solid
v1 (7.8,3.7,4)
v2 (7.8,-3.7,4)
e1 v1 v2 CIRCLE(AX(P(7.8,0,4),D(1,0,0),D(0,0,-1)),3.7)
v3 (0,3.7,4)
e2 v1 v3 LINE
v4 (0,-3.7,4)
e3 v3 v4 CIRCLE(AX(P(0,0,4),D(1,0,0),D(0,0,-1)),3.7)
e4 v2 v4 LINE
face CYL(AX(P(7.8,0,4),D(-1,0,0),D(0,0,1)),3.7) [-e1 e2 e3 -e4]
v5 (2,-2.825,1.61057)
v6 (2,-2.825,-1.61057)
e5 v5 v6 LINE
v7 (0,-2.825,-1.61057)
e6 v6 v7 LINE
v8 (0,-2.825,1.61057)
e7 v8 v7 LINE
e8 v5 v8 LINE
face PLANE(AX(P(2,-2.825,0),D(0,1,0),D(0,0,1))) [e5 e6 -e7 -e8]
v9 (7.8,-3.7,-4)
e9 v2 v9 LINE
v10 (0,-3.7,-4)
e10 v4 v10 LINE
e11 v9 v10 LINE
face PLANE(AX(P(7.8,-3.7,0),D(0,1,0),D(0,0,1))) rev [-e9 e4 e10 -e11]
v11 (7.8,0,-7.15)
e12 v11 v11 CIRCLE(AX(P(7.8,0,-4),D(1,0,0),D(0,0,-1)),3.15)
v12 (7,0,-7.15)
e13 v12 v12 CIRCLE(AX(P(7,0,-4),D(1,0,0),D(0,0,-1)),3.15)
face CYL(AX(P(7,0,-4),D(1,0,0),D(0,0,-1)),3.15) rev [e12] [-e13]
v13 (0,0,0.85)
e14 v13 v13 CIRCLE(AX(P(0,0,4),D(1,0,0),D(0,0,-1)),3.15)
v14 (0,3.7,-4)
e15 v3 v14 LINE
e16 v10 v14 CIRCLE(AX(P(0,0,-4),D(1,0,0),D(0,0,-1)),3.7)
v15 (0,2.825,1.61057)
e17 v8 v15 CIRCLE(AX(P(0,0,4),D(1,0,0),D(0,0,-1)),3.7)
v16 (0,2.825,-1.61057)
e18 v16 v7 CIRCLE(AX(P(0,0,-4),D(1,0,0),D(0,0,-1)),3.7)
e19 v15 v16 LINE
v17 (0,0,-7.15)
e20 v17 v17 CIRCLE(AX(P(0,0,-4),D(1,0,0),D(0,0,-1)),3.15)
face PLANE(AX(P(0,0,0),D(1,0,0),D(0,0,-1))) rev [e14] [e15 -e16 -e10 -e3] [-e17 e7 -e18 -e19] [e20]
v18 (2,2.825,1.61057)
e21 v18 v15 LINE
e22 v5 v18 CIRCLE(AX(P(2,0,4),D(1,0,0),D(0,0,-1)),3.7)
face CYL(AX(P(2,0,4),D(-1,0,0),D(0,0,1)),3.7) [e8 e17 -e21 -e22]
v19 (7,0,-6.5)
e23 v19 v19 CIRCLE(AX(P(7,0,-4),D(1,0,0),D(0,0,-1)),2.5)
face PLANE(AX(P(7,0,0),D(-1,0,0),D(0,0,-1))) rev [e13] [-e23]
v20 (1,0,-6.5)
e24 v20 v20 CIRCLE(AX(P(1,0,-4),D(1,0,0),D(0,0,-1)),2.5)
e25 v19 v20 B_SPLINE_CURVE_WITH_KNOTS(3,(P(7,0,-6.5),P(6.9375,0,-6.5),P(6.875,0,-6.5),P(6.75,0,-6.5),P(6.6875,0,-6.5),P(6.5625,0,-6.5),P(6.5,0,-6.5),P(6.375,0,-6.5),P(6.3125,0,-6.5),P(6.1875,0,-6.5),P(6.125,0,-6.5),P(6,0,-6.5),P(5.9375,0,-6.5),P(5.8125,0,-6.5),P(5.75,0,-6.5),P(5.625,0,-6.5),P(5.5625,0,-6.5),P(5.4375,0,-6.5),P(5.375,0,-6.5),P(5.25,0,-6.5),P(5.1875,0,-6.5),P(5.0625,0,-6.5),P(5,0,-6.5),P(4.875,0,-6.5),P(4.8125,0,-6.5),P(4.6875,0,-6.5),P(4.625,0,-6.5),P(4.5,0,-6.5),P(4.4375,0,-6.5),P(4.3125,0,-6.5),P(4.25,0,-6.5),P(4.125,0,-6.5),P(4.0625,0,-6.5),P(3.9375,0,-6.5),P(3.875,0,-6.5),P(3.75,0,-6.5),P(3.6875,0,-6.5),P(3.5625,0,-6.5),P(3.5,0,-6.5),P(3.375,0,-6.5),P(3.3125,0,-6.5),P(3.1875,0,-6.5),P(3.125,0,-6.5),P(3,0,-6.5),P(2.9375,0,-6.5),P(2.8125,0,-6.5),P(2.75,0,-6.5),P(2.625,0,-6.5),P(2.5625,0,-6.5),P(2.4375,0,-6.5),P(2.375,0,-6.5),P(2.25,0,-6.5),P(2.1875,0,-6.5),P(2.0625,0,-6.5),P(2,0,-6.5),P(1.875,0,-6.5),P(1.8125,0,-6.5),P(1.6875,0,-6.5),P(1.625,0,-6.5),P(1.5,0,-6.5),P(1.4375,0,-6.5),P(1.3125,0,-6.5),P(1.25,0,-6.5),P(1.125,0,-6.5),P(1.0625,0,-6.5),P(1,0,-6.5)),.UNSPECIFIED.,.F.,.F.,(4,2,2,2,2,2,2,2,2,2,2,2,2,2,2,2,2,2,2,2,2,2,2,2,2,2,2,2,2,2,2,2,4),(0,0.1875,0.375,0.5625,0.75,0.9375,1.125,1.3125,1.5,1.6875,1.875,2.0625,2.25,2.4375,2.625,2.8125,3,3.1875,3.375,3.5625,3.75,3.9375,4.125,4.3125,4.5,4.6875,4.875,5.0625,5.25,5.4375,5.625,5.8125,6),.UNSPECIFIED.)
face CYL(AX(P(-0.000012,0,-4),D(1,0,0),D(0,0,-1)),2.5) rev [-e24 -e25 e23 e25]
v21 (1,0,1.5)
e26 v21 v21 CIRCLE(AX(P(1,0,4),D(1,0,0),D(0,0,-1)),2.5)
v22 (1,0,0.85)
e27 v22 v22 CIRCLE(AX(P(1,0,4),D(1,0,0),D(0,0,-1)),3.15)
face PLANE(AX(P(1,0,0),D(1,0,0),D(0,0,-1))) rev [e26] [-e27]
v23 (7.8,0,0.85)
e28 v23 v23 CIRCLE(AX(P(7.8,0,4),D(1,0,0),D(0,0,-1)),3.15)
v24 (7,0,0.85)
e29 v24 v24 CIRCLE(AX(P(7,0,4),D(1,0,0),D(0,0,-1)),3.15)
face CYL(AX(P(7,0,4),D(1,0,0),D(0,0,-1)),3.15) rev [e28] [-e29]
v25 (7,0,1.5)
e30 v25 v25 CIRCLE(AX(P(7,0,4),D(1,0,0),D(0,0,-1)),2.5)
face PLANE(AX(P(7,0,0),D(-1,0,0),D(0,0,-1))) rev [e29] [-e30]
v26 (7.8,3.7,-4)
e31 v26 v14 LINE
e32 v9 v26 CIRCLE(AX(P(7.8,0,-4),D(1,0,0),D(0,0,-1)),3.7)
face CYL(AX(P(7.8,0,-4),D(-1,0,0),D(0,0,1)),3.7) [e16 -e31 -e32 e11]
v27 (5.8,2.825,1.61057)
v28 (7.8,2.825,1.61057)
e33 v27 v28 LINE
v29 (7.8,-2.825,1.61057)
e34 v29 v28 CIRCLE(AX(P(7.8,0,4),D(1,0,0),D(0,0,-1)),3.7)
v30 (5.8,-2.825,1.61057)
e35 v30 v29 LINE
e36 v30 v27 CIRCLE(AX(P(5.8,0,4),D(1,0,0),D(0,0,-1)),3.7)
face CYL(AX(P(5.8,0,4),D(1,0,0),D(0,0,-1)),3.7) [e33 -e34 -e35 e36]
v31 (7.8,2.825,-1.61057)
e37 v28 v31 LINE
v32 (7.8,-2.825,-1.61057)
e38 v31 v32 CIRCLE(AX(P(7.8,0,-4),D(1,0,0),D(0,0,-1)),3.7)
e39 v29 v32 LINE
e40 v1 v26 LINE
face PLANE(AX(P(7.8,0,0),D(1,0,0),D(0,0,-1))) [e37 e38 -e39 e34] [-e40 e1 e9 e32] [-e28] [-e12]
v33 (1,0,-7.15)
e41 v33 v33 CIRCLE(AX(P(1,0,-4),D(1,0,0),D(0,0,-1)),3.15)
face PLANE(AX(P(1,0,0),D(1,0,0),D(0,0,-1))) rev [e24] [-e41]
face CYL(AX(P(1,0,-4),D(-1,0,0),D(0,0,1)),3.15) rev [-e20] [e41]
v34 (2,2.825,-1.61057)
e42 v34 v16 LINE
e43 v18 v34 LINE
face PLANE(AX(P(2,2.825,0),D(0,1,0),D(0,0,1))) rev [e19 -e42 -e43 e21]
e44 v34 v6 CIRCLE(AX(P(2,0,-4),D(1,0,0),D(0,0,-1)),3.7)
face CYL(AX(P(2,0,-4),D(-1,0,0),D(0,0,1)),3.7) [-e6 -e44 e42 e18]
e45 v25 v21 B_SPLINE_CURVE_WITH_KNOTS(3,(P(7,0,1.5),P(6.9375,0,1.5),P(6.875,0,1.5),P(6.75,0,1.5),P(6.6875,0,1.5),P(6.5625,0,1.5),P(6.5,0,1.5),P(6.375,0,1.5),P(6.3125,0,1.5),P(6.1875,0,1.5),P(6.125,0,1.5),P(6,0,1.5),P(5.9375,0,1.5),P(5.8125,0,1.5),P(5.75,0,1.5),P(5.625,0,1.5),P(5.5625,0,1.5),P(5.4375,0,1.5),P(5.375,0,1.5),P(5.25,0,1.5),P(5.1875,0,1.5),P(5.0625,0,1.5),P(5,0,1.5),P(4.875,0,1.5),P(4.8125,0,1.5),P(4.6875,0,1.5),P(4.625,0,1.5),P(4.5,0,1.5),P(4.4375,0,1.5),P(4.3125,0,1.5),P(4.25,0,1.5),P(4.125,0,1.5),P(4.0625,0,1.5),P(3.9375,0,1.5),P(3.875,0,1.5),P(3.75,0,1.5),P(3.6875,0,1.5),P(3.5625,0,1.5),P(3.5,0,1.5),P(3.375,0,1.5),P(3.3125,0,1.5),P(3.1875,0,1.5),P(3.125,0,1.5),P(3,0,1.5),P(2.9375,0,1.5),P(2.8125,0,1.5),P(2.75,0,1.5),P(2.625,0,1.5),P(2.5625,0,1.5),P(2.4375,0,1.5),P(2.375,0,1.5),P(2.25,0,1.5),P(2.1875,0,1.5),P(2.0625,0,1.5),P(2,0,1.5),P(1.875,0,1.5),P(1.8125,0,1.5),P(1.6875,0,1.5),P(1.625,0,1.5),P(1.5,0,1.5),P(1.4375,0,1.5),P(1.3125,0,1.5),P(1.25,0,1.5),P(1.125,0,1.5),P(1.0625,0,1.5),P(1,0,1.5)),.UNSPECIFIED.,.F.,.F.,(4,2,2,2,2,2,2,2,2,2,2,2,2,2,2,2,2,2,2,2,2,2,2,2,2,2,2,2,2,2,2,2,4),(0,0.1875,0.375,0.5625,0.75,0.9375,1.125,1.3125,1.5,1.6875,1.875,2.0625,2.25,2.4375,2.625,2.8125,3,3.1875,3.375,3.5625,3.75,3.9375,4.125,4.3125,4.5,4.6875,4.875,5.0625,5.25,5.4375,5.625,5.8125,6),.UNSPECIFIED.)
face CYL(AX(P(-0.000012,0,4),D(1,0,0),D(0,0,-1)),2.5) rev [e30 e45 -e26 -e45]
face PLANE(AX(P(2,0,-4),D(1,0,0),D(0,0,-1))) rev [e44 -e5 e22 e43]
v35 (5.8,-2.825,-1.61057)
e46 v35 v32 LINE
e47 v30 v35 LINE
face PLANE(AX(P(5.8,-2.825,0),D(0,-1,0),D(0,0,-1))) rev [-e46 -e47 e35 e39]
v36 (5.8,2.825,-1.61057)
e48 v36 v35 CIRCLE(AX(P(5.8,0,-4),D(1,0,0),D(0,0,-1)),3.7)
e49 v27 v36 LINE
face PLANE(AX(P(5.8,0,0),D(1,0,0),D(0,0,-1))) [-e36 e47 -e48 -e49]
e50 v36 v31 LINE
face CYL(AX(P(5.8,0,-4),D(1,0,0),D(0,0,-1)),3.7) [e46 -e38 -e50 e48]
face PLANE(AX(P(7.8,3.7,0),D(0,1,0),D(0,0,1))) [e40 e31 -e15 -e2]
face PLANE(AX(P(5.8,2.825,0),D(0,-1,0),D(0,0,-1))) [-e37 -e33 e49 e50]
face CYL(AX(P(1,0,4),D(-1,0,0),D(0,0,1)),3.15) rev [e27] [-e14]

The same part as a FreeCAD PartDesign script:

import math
import FreeCAD as App
import Part
import Sketcher
Q = App.Units.Quantity

doc = App.newDocument("Part")
params = doc.addObject("Spreadsheet::Sheet", "Params")
for row, (alias, value) in enumerate([
    ("sketch1_radius", "3.7 mm"),
    ("sketch1_height", "8 mm"),
    ("pad1_length", "7.8 mm"),
    ("sketch2_diameter", "5 mm"),
    ("sketch3_diameter", "6.3 mm"),
    ("pocket2_length", "1 mm"),
    ("sketch4_radius", "3.7 mm"),
    ("pocket3_length", "2 mm"),
    ("sketch5_radius", "3.7 mm"),
    ("pocket4_length", "2 mm"),
], start=1):
    params.set(f"A{row}", alias)
    params.set(f"B{row}", "=" + value)
    params.setAlias(f"B{row}", alias)

body = doc.addObject("PartDesign::Body", "Body")

# Sketch on YZ plane
sketch1 = doc.addObject("Sketcher::SketchObject", "Sketch")
body.addObject(sketch1)
sketch1.AttachmentSupport = (doc.YZ_Plane, [""])
sketch1.MapMode = "FlatFace"
sketch1.addGeometry([
    Part.LineSegment(App.Vector(3.7, -4, 0), App.Vector(3.7, 4, 0)),
    Part.ArcOfCircle(Part.Circle(App.Vector(0, 4, 0), App.Vector(0, 0, 1), 3.7), math.radians(0), math.radians(180)),
    Part.LineSegment(App.Vector(-3.7, 4, 0), App.Vector(-3.7, -4, 0)),
    Part.ArcOfCircle(Part.Circle(App.Vector(0, -4, 0), App.Vector(0, 0, 1), 3.7), math.radians(180), math.radians(360)),
], False)
sketch1.addConstraint([
    Sketcher.Constraint("Tangent", 0, 2, 1, 1),
    Sketcher.Constraint("Tangent", 1, 2, 2, 1),
    Sketcher.Constraint("Tangent", 2, 2, 3, 1),
    Sketcher.Constraint("Tangent", 3, 2, 0, 1),
    Sketcher.Constraint("Vertical", 0),
    Sketcher.Constraint("Vertical", 2),
    Sketcher.Constraint("Symmetric", 1, 3, 3, 3, -1, 1),
    Sketcher.Constraint("Radius", 1, Q("3.7 mm")),
    Sketcher.Constraint("DistanceY", 0, 1, 0, 2, Q("8 mm")),
])
sketch1.setExpression("Constraints[7]", "Params.sketch1_radius")
sketch1.setExpression("Constraints[8]", "Params.sketch1_height")
pad1 = doc.addObject("PartDesign::Pad", "Pad")
body.addObject(pad1)
pad1.Profile = sketch1
pad1.setExpression("Length", "Params.pad1_length")

# Sketch on YZ plane
sketch2 = doc.addObject("Sketcher::SketchObject", "Sketch001")
body.addObject(sketch2)
sketch2.AttachmentSupport = (doc.YZ_Plane, [""])
sketch2.MapMode = "FlatFace"
sketch2.addGeometry([
    Part.Circle(App.Vector(0, 4, 0), App.Vector(0, 0, 1), 2.5),
    Part.Circle(App.Vector(0, -4, 0), App.Vector(0, 0, 1), 2.5),
], False)
sketch2.addConstraint([
    Sketcher.Constraint("Equal", 0, 1),
    Sketcher.Constraint("Symmetric", 0, 3, 1, 3, -1, 1),
    Sketcher.Constraint("PointOnObject", 0, 3, -2),
    Sketcher.Constraint("Diameter", 0, Q("5 mm")),
    Sketcher.Constraint("DistanceY", -1, 1, 0, 3, Q("4 mm")),
])
sketch2.setExpression("Constraints[3]", "Params.sketch2_diameter")
pocket1 = doc.addObject("PartDesign::Pocket", "Pocket")
body.addObject(pocket1)
pocket1.Profile = sketch2
pocket1.Type = "ThroughAll"
pocket1.Midplane = True

# Sketch on YZ plane
sketch3 = doc.addObject("Sketcher::SketchObject", "Sketch002")
body.addObject(sketch3)
sketch3.AttachmentSupport = (doc.YZ_Plane, [""])
sketch3.MapMode = "FlatFace"
sketch3.addGeometry([
    Part.Circle(App.Vector(0, 4, 0), App.Vector(0, 0, 1), 3.1),
    Part.Circle(App.Vector(0, -4, 0), App.Vector(0, 0, 1), 3.1),
], False)
sketch3.addConstraint([
    Sketcher.Constraint("Equal", 0, 1),
    Sketcher.Constraint("Symmetric", 0, 3, 1, 3, -1, 1),
    Sketcher.Constraint("PointOnObject", 0, 3, -2),
    Sketcher.Constraint("Diameter", 0, Q("6.3 mm")),
    Sketcher.Constraint("DistanceY", -1, 1, 0, 3, Q("4 mm")),
])
sketch3.setExpression("Constraints[3]", "Params.sketch3_diameter")
pocket2 = doc.addObject("PartDesign::Pocket", "Pocket001")
body.addObject(pocket2)
pocket2.Profile = sketch3
pocket2.setExpression("Length", "Params.pocket2_length")
pocket2.Reversed = True
doc.recompute()

datumplane = doc.addObject("PartDesign::Plane", "DatumPlane")
body.addObject(datumplane)
datumplane.AttachmentSupport = (doc.YZ_Plane, [""])
datumplane.MapMode = "FlatFace"
datumplane.AttachmentOffset = App.Placement(App.Vector(0, 0, 4), App.Rotation())
mirrored = doc.addObject("PartDesign::Mirrored", "Mirrored")
body.addObject(mirrored)
mirrored.Originals = [pocket2]
mirrored.MirrorPlane = (datumplane, [""])
body.Tip = mirrored

# Sketch on YZ plane
sketch4 = doc.addObject("Sketcher::SketchObject", "Sketch003")
body.addObject(sketch4)
sketch4.AttachmentSupport = (doc.YZ_Plane, [""])
sketch4.MapMode = "FlatFace"
sketch4.AttachmentOffset = App.Placement(App.Vector(0, 0, 5.8), App.Rotation())
sketch4.addGeometry([
    Part.LineSegment(App.Vector(2.8, -1.6, 0), App.Vector(2.8, 1.6, 0)),  # 0
    Part.ArcOfCircle(Part.Circle(App.Vector(0, 4, 0), App.Vector(0, 0, 1), 3.7), math.radians(-90), math.radians(-40)),  # 1
    Part.ArcOfCircle(Part.Circle(App.Vector(0, 4, 0), App.Vector(0, 0, 1), 3.7), math.radians(-140), math.radians(-90)),  # 2
    Part.LineSegment(App.Vector(-2.8, 1.6, 0), App.Vector(-2.8, -1.6, 0)),  # 3
    Part.ArcOfCircle(Part.Circle(App.Vector(0, -4, 0), App.Vector(0, 0, 1), 3.7), math.radians(40), math.radians(140)),  # 4
], False)
sketch4.addConstraint([
    Sketcher.Constraint("Coincident", 0, 2, 1, 2),
    Sketcher.Constraint("Tangent", 1, 1, 2, 2),
    Sketcher.Constraint("Coincident", 2, 1, 3, 1),
    Sketcher.Constraint("Coincident", 3, 2, 4, 2),
    Sketcher.Constraint("Coincident", 4, 1, 0, 1),
    Sketcher.Constraint("Vertical", 0),
    Sketcher.Constraint("Vertical", 3),
    Sketcher.Constraint("Equal", 1, 2),
    Sketcher.Constraint("Equal", 2, 4),
    Sketcher.Constraint("Symmetric", 1, 3, 4, 3, -1, 1),
    Sketcher.Constraint("Symmetric", 0, 2, 2, 1, -2),
    Sketcher.Constraint("PointOnObject", 1, 1, -2),
    Sketcher.Constraint("Radius", 1, Q("3.7 mm")),
    Sketcher.Constraint("DistanceY", -1, 1, 1, 3, Q("4 mm")),
    Sketcher.Constraint("DistanceX", 2, 1, 0, 2, Q("5.65 mm")),
])
sketch4.setExpression("Constraints[12]", "Params.sketch4_radius")
pocket3 = doc.addObject("PartDesign::Pocket", "Pocket002")
body.addObject(pocket3)
pocket3.Profile = sketch4
pocket3.setExpression("Length", "Params.pocket3_length")
pocket3.Reversed = True

# Sketch on YZ plane
sketch5 = doc.addObject("Sketcher::SketchObject", "Sketch004")
body.addObject(sketch5)
sketch5.AttachmentSupport = (doc.YZ_Plane, [""])
sketch5.MapMode = "FlatFace"
sketch5.addGeometry([
    Part.LineSegment(App.Vector(2.8, -1.6, 0), App.Vector(2.8, 1.6, 0)),  # 0
    Part.ArcOfCircle(Part.Circle(App.Vector(0, 4, 0), App.Vector(0, 0, 1), 3.7), math.radians(-90), math.radians(-40)),  # 1
    Part.ArcOfCircle(Part.Circle(App.Vector(0, 4, 0), App.Vector(0, 0, 1), 3.7), math.radians(-140), math.radians(-90)),  # 2
    Part.LineSegment(App.Vector(-2.8, 1.6, 0), App.Vector(-2.8, -1.6, 0)),  # 3
    Part.ArcOfCircle(Part.Circle(App.Vector(0, -4, 0), App.Vector(0, 0, 1), 3.7), math.radians(40), math.radians(140)),  # 4
], False)
sketch5.addConstraint([
    Sketcher.Constraint("Coincident", 0, 2, 1, 2),
    Sketcher.Constraint("Tangent", 1, 1, 2, 2),
    Sketcher.Constraint("Coincident", 2, 1, 3, 1),
    Sketcher.Constraint("Coincident", 3, 2, 4, 2),
    Sketcher.Constraint("Coincident", 4, 1, 0, 1),
    Sketcher.Constraint("Vertical", 0),
    Sketcher.Constraint("Vertical", 3),
    Sketcher.Constraint("Equal", 1, 2),
    Sketcher.Constraint("Equal", 2, 4),
    Sketcher.Constraint("Symmetric", 1, 3, 4, 3, -1, 1),
    Sketcher.Constraint("Symmetric", 0, 2, 2, 1, -2),
    Sketcher.Constraint("PointOnObject", 1, 1, -2),
    Sketcher.Constraint("Radius", 1, Q("3.7 mm")),
    Sketcher.Constraint("DistanceY", -1, 1, 1, 3, Q("4 mm")),
    Sketcher.Constraint("DistanceX", 2, 1, 0, 2, Q("5.65 mm")),
])
sketch5.setExpression("Constraints[12]", "Params.sketch5_radius")
pocket4 = doc.addObject("PartDesign::Pocket", "Pocket003")
body.addObject(pocket4)
pocket4.Profile = sketch5
pocket4.setExpression("Length", "Params.pocket4_length")
pocket4.Reversed = True

doc.recompute()
